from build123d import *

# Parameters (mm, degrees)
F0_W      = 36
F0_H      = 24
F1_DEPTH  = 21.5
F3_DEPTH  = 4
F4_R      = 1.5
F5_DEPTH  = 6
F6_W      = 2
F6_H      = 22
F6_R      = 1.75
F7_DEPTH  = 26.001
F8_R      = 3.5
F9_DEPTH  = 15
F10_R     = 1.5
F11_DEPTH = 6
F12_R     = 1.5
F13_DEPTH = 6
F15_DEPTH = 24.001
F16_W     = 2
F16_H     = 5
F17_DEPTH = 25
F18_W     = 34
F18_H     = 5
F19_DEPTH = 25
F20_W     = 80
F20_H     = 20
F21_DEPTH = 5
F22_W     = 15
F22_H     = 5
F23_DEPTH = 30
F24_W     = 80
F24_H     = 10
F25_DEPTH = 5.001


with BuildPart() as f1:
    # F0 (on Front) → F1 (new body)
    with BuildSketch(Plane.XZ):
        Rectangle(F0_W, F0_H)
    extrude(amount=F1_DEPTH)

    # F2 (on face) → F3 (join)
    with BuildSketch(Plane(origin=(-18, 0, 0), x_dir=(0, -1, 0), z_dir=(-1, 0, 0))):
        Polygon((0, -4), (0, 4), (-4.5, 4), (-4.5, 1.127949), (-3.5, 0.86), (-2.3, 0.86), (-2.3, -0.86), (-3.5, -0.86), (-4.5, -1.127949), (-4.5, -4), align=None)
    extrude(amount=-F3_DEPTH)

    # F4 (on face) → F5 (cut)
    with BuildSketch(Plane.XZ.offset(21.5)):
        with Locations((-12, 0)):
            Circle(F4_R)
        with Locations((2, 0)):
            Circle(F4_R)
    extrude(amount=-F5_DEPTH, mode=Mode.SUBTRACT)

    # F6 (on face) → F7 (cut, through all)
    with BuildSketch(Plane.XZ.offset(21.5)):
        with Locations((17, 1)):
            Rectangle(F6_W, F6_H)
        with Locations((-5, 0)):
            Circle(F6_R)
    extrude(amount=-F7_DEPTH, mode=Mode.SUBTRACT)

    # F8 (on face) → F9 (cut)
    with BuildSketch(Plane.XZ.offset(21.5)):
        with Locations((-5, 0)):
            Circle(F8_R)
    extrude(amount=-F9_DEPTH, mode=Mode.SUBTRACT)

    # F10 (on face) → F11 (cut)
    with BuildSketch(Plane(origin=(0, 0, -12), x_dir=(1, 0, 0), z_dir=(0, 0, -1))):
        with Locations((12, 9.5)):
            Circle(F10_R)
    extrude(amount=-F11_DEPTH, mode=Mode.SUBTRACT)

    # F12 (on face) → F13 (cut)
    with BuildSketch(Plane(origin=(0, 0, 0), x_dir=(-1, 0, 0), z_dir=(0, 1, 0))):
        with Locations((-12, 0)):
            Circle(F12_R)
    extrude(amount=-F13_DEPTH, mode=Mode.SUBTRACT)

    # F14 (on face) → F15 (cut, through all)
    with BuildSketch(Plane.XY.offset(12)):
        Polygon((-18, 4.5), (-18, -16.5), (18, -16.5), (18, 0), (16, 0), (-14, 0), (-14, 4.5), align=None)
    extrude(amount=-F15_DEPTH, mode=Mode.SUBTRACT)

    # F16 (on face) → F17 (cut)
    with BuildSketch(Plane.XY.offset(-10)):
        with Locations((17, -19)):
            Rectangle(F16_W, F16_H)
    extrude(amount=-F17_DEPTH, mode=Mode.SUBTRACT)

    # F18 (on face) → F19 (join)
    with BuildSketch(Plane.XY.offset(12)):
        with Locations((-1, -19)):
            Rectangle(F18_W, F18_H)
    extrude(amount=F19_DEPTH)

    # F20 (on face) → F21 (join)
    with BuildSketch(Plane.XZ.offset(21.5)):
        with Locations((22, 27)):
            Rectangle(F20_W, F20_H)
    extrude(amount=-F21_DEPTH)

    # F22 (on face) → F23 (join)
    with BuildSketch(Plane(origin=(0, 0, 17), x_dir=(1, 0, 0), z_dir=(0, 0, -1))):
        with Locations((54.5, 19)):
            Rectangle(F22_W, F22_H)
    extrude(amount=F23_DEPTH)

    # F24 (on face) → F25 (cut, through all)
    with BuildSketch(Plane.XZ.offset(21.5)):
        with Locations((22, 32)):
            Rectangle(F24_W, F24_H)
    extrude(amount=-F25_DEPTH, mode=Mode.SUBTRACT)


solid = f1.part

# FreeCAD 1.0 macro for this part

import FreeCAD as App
import Part
import Sketcher
Q = App.Units.Quantity


def add_polygon(sketch, points):
    """Adds a closed chain of lines whose ends are joined by coincident constraints."""
    first, n = sketch.GeometryCount, len(points)
    for a, b in zip(points, points[1:] + points[:1]):
        sketch.addGeometry(Part.LineSegment(App.Vector(*a, 0), App.Vector(*b, 0)), False)
    for i in range(n):
        sketch.addConstraint(Sketcher.Constraint("Coincident", first + i, 2, first + (i + 1) % n, 1))

doc = App.newDocument("Part")
params = doc.addObject("Spreadsheet::Sheet", "Params")
for row, (alias, value) in enumerate([
    ("sketch1_width", "36 mm"),
    ("sketch1_height", "24 mm"),
    ("pad1_length", "21.5 mm"),
    ("sketch2_height", "8 mm"),
    ("sketch2_width", "4.5 mm"),
    ("sketch2_width2", "1.2 mm"),
    ("sketch2_height2", "1.72 mm"),
    ("pad2_length", "4 mm"),
    ("sketch3_diameter", "3 mm"),
    ("pocket1_length", "6 mm"),
    ("sketch4_diameter", "3.5 mm"),
    ("sketch4_width", "2 mm"),
    ("sketch4_height", "22 mm"),
    ("sketch5_diameter", "7 mm"),
    ("pocket3_length", "15 mm"),
    ("sketch6_diameter", "3 mm"),
    ("pocket4_length", "6 mm"),
    ("sketch7_diameter", "3 mm"),
    ("pocket5_length", "6 mm"),
    ("sketch8_width", "36 mm"),
    ("sketch8_width2", "32 mm"),
    ("sketch8_height", "21 mm"),
    ("sketch8_height2", "16.5 mm"),
    ("sketch9_width", "2 mm"),
    ("sketch9_height", "5 mm"),
    ("pocket7_length", "25 mm"),
    ("sketch10_width", "34 mm"),
    ("sketch10_height", "5 mm"),
    ("pad3_length", "25 mm"),
    ("sketch11_width", "80 mm"),
    ("sketch11_height", "20 mm"),
    ("pad4_length", "5 mm"),
    ("sketch12_width", "15 mm"),
    ("sketch12_height", "5 mm"),
    ("pad5_length", "30 mm"),
    ("sketch13_width", "80 mm"),
    ("sketch13_height", "10 mm"),
], start=1):
    params.set(f"A{row}", alias)
    params.set(f"B{row}", "=" + value)
    params.setAlias(f"B{row}", alias)

body = doc.addObject("PartDesign::Body", "Body")

sketch1 = body.newObject("Sketcher::SketchObject", "Sketch")
sketch1.AttachmentSupport = (doc.getObject("XZ_Plane"), [""])
sketch1.MapMode = "FlatFace"
add_polygon(sketch1, [(-18, 12), (-18, -12), (18, -12), (18, 12)])
sketch1.addConstraint([
    Sketcher.Constraint("Vertical", 0),
    Sketcher.Constraint("Horizontal", 1),
    Sketcher.Constraint("Vertical", 2),
    Sketcher.Constraint("Horizontal", 3),
    Sketcher.Constraint("Symmetric", 0, 2, 2, 2, -1, 1),
    Sketcher.Constraint("DistanceX", 1, 1, 1, 2, 36.0),
    Sketcher.Constraint("DistanceY", 0, 2, 0, 1, 24.0),
])
sketch1.setExpression("Constraints[9]", "Params.sketch1_width")
sketch1.setExpression("Constraints[10]", "Params.sketch1_height")
pad1 = body.newObject("PartDesign::Pad", "Pad")
pad1.Profile = sketch1
pad1.setExpression("Length", "Params.pad1_length")

sketch2 = body.newObject("Sketcher::SketchObject", "Sketch001")
sketch2.AttachmentSupport = (doc.getObject("YZ_Plane"), [""])
sketch2.MapMode = "FlatFace"
sketch2.AttachmentOffset = App.Placement(App.Vector(0, 0, -18), App.Rotation())
add_polygon(sketch2, [(0, -4), (0, 4), (4.5, 4), (4.5, 1.1), (3.5, 0.9), (2.3, 0.9), (2.3, -0.9), (3.5, -0.9), (4.5, -1.1), (4.5, -4)])
sketch2.addConstraint([
    Sketcher.Constraint("Vertical", 0),
    Sketcher.Constraint("Horizontal", 1),
    Sketcher.Constraint("Vertical", 2),
    Sketcher.Constraint("Horizontal", 4),
    Sketcher.Constraint("Vertical", 5),
    Sketcher.Constraint("Horizontal", 6),
    Sketcher.Constraint("Vertical", 8),
    Sketcher.Constraint("Horizontal", 9),
    Sketcher.Constraint("Symmetric", 0, 2, 9, 2, -1, 1),
    Sketcher.Constraint("Symmetric", 3, 2, 6, 2, -1),
    Sketcher.Constraint("Symmetric", 2, 2, 7, 2, -1),
    Sketcher.Constraint("DistanceY", 0, 1, 0, 2, 8.0),
    Sketcher.Constraint("Angle", 3, Q("-165.00001 deg")),
    Sketcher.Constraint("DistanceX", 1, 1, 1, 2, 4.5),
    Sketcher.Constraint("DistanceX", 4, 2, 4, 1, 1.2),
    Sketcher.Constraint("DistanceX", 3, 2, 2, 2, 1.0),
    Sketcher.Constraint("DistanceY", 5, 2, 5, 1, 1.72),
])
sketch2.setExpression("Constraints[21]", "Params.sketch2_height")
sketch2.setExpression("Constraints[23]", "Params.sketch2_width")
sketch2.setExpression("Constraints[24]", "Params.sketch2_width2")
sketch2.setExpression("Constraints[26]", "Params.sketch2_height2")
pad2 = body.newObject("PartDesign::Pad", "Pad001")
pad2.Profile = sketch2
pad2.setExpression("Length", "Params.pad2_length")

sketch3 = body.newObject("Sketcher::SketchObject", "Sketch002")
sketch3.AttachmentSupport = (doc.getObject("XZ_Plane"), [""])
sketch3.MapMode = "FlatFace"
sketch3.AttachmentOffset = App.Placement(App.Vector(0, 0, 21.5), App.Rotation())
sketch3.addGeometry([
    Part.Circle(App.Vector(-12, 0, 0), App.Vector(0, 0, 1), 1.5),
    Part.Circle(App.Vector(2, 0, 0), App.Vector(0, 0, 1), 1.5),
], False)
sketch3.addConstraint([
    Sketcher.Constraint("Equal", 0, 1),
    Sketcher.Constraint("PointOnObject", 0, 3, -1),
    Sketcher.Constraint("PointOnObject", 1, 3, -1),
    Sketcher.Constraint("Diameter", 0, 3.0),
    Sketcher.Constraint("DistanceX", 0, 3, -1, 1, 12.0),
    Sketcher.Constraint("DistanceX", -1, 1, 1, 3, 2.0),
])
sketch3.setExpression("Constraints[3]", "Params.sketch3_diameter")
pocket1 = body.newObject("PartDesign::Pocket", "Pocket")
pocket1.Profile = sketch3
pocket1.setExpression("Length", "Params.pocket1_length")

sketch4 = body.newObject("Sketcher::SketchObject", "Sketch003")
sketch4.AttachmentSupport = (doc.getObject("XZ_Plane"), [""])
sketch4.MapMode = "FlatFace"
sketch4.AttachmentOffset = App.Placement(App.Vector(0, 0, 21.5), App.Rotation())
add_polygon(sketch4, [(16, 12), (16, -10), (18, -10), (18, 12)])
sketch4.addGeometry(Part.Circle(App.Vector(-5, 0, 0), App.Vector(0, 0, 1), 1.8), False)
sketch4.addConstraint([
    Sketcher.Constraint("Vertical", 0),
    Sketcher.Constraint("Horizontal", 1),
    Sketcher.Constraint("Vertical", 2),
    Sketcher.Constraint("Horizontal", 3),
    Sketcher.Constraint("PointOnObject", 4, 3, -1),
    Sketcher.Constraint("Diameter", 4, 3.5),
    Sketcher.Constraint("DistanceX", 1, 1, 1, 2, 2.0),
    Sketcher.Constraint("DistanceY", 0, 2, 0, 1, 22.0),
    Sketcher.Constraint("DistanceX", 4, 3, -1, 1, 5.0),
    Sketcher.Constraint("DistanceX", -1, 1, 0, 2, 16.0),
    Sketcher.Constraint("DistanceY", 0, 2, -1, 1, 10.0),
])
sketch4.setExpression("Constraints[9]", "Params.sketch4_diameter")
sketch4.setExpression("Constraints[10]", "Params.sketch4_width")
sketch4.setExpression("Constraints[11]", "Params.sketch4_height")
pocket2 = body.newObject("PartDesign::Pocket", "Pocket001")
pocket2.Profile = sketch4
pocket2.Type = "ThroughAll"

sketch5 = body.newObject("Sketcher::SketchObject", "Sketch004")
sketch5.AttachmentSupport = (doc.getObject("XZ_Plane"), [""])
sketch5.MapMode = "FlatFace"
sketch5.AttachmentOffset = App.Placement(App.Vector(0, 0, 21.5), App.Rotation())
sketch5.addGeometry(Part.Circle(App.Vector(-5, 0, 0), App.Vector(0, 0, 1), 3.5), False)
sketch5.addConstraint([
    Sketcher.Constraint("PointOnObject", 0, 3, -1),
    Sketcher.Constraint("Diameter", 0, 7.0),
    Sketcher.Constraint("DistanceX", 0, 3, -1, 1, 5.0),
])
sketch5.setExpression("Constraints[1]", "Params.sketch5_diameter")
pocket3 = body.newObject("PartDesign::Pocket", "Pocket002")
pocket3.Profile = sketch5
pocket3.setExpression("Length", "Params.pocket3_length")

sketch6 = body.newObject("Sketcher::SketchObject", "Sketch005")
sketch6.AttachmentSupport = (doc.getObject("XY_Plane"), [""])
sketch6.MapMode = "FlatFace"
sketch6.AttachmentOffset = App.Placement(App.Vector(0, 0, -12), App.Rotation())
sketch6.addGeometry(Part.Circle(App.Vector(12, -9.5, 0), App.Vector(0, 0, 1), 1.5), False)
sketch6.addConstraint([
    Sketcher.Constraint("Diameter", 0, 3.0),
    Sketcher.Constraint("DistanceX", -1, 1, 0, 3, 12.0),
    Sketcher.Constraint("DistanceY", 0, 3, -1, 1, 9.5),
])
sketch6.setExpression("Constraints[0]", "Params.sketch6_diameter")
pocket4 = body.newObject("PartDesign::Pocket", "Pocket003")
pocket4.Profile = sketch6
pocket4.setExpression("Length", "Params.pocket4_length")
pocket4.Reversed = True

sketch7 = body.newObject("Sketcher::SketchObject", "Sketch006")
sketch7.AttachmentSupport = (doc.getObject("XZ_Plane"), [""])
sketch7.MapMode = "FlatFace"
sketch7.addGeometry(Part.Circle(App.Vector(12, 0, 0), App.Vector(0, 0, 1), 1.5), False)
sketch7.addConstraint([
    Sketcher.Constraint("PointOnObject", 0, 3, -1),
    Sketcher.Constraint("Diameter", 0, 3.0),
    Sketcher.Constraint("DistanceX", -1, 1, 0, 3, 12.0),
])
sketch7.setExpression("Constraints[1]", "Params.sketch7_diameter")
pocket5 = body.newObject("PartDesign::Pocket", "Pocket004")
pocket5.Profile = sketch7
pocket5.setExpression("Length", "Params.pocket5_length")
pocket5.Reversed = True

sketch8 = body.newObject("Sketcher::SketchObject", "Sketch007")
sketch8.AttachmentSupport = (doc.getObject("XY_Plane"), [""])
sketch8.MapMode = "FlatFace"
sketch8.AttachmentOffset = App.Placement(App.Vector(0, 0, 12), App.Rotation())
add_polygon(sketch8, [(-18, 4.5), (-18, -16.5), (18, -16.5), (18, 0), (-14, 0), (-14, 4.5)])
sketch8.addConstraint([
    Sketcher.Constraint("Vertical", 0),
    Sketcher.Constraint("Horizontal", 1),
    Sketcher.Constraint("Vertical", 2),
    Sketcher.Constraint("Horizontal", 3),
    Sketcher.Constraint("Vertical", 4),
    Sketcher.Constraint("Horizontal", 5),
    Sketcher.Constraint("PointOnObject", 2, 2, -1),
    Sketcher.Constraint("DistanceX", 1, 1, 1, 2, 36.0),
    Sketcher.Constraint("DistanceX", 3, 2, 3, 1, 32.0),
    Sketcher.Constraint("DistanceY", 0, 2, 0, 1, 21.0),
    Sketcher.Constraint("DistanceY", 2, 1, 2, 2, 16.5),
    Sketcher.Constraint("DistanceX", 0, 2, -1, 1, 18.0),
])
sketch8.setExpression("Constraints[13]", "Params.sketch8_width")
sketch8.setExpression("Constraints[14]", "Params.sketch8_width2")
sketch8.setExpression("Constraints[15]", "Params.sketch8_height")
sketch8.setExpression("Constraints[16]", "Params.sketch8_height2")
pocket6 = body.newObject("PartDesign::Pocket", "Pocket005")
pocket6.Profile = sketch8
pocket6.Type = "ThroughAll"

sketch9 = body.newObject("Sketcher::SketchObject", "Sketch008")
sketch9.AttachmentSupport = (doc.getObject("XY_Plane"), [""])
sketch9.MapMode = "FlatFace"
sketch9.AttachmentOffset = App.Placement(App.Vector(0, 0, -10), App.Rotation())
add_polygon(sketch9, [(16, -16.5), (16, -21.5), (18, -21.5), (18, -16.5)])
sketch9.addConstraint([
    Sketcher.Constraint("Vertical", 0),
    Sketcher.Constraint("Horizontal", 1),
    Sketcher.Constraint("Vertical", 2),
    Sketcher.Constraint("Horizontal", 3),
    Sketcher.Constraint("DistanceX", 1, 1, 1, 2, 2.0),
    Sketcher.Constraint("DistanceY", 0, 2, 0, 1, 5.0),
    Sketcher.Constraint("DistanceX", -1, 1, 0, 2, 16.0),
    Sketcher.Constraint("DistanceY", 0, 2, -1, 1, 21.5),
])
sketch9.setExpression("Constraints[8]", "Params.sketch9_width")
sketch9.setExpression("Constraints[9]", "Params.sketch9_height")
pocket7 = body.newObject("PartDesign::Pocket", "Pocket006")
pocket7.Profile = sketch9
pocket7.setExpression("Length", "Params.pocket7_length")

sketch10 = body.newObject("Sketcher::SketchObject", "Sketch009")
sketch10.AttachmentSupport = (doc.getObject("XY_Plane"), [""])
sketch10.MapMode = "FlatFace"
sketch10.AttachmentOffset = App.Placement(App.Vector(0, 0, 12), App.Rotation())
add_polygon(sketch10, [(-18, -16), (-18, -22), (16, -22), (16, -16)])
sketch10.addConstraint([
    Sketcher.Constraint("Vertical", 0),
    Sketcher.Constraint("Horizontal", 1),
    Sketcher.Constraint("Vertical", 2),
    Sketcher.Constraint("Horizontal", 3),
    Sketcher.Constraint("DistanceX", 1, 1, 1, 2, 34.0),
    Sketcher.Constraint("DistanceY", 0, 2, 0, 1, 5.0),
    Sketcher.Constraint("DistanceX", 0, 2, -1, 1, 18.0),
    Sketcher.Constraint("DistanceY", 0, 2, -1, 1, 21.5),
])
sketch10.setExpression("Constraints[8]", "Params.sketch10_width")
sketch10.setExpression("Constraints[9]", "Params.sketch10_height")
pad3 = body.newObject("PartDesign::Pad", "Pad002")
pad3.Profile = sketch10
pad3.setExpression("Length", "Params.pad3_length")

sketch11 = body.newObject("Sketcher::SketchObject", "Sketch010")
sketch11.AttachmentSupport = (doc.getObject("XZ_Plane"), [""])
sketch11.MapMode = "FlatFace"
sketch11.AttachmentOffset = App.Placement(App.Vector(0, 0, 21.5), App.Rotation())
add_polygon(sketch11, [(-18, 37), (-18, 17), (62, 17), (62, 37)])
sketch11.addConstraint([
    Sketcher.Constraint("Vertical", 0),
    Sketcher.Constraint("Horizontal", 1),
    Sketcher.Constraint("Vertical", 2),
    Sketcher.Constraint("Horizontal", 3),
    Sketcher.Constraint("DistanceX", 1, 1, 1, 2, 80.0),
    Sketcher.Constraint("DistanceY", 0, 2, 0, 1, 20.0),
    Sketcher.Constraint("DistanceX", 0, 2, -1, 1, 18.0),
    Sketcher.Constraint("DistanceY", -1, 1, 0, 2, 17.0),
])
sketch11.setExpression("Constraints[8]", "Params.sketch11_width")
sketch11.setExpression("Constraints[9]", "Params.sketch11_height")
pad4 = body.newObject("PartDesign::Pad", "Pad003")
pad4.Profile = sketch11
pad4.setExpression("Length", "Params.pad4_length")
pad4.Reversed = True

sketch12 = body.newObject("Sketcher::SketchObject", "Sketch011")
sketch12.AttachmentSupport = (doc.getObject("XY_Plane"), [""])
sketch12.MapMode = "FlatFace"
sketch12.AttachmentOffset = App.Placement(App.Vector(0, 0, 17), App.Rotation())
add_polygon(sketch12, [(47, -22), (47, -16), (62, -16), (62, -22)])
sketch12.addConstraint([
    Sketcher.Constraint("Vertical", 0),
    Sketcher.Constraint("Horizontal", 1),
    Sketcher.Constraint("Vertical", 2),
    Sketcher.Constraint("Horizontal", 3),
    Sketcher.Constraint("DistanceX", 1, 1, 1, 2, 15.0),
    Sketcher.Constraint("DistanceY", 0, 1, 0, 2, 5.0),
    Sketcher.Constraint("DistanceX", -1, 1, 0, 2, 47.0),
    Sketcher.Constraint("DistanceY", 0, 2, -1, 1, 16.5),
])
sketch12.setExpression("Constraints[8]", "Params.sketch12_width")
sketch12.setExpression("Constraints[9]", "Params.sketch12_height")
pad5 = body.newObject("PartDesign::Pad", "Pad004")
pad5.Profile = sketch12
pad5.setExpression("Length", "Params.pad5_length")
pad5.Reversed = True

sketch13 = body.newObject("Sketcher::SketchObject", "Sketch012")
sketch13.AttachmentSupport = (doc.getObject("XZ_Plane"), [""])
sketch13.MapMode = "FlatFace"
sketch13.AttachmentOffset = App.Placement(App.Vector(0, 0, 21.5), App.Rotation())
add_polygon(sketch13, [(-18, 37), (-18, 27), (62, 27), (62, 37)])
sketch13.addConstraint([
    Sketcher.Constraint("Vertical", 0),
    Sketcher.Constraint("Horizontal", 1),
    Sketcher.Constraint("Vertical", 2),
    Sketcher.Constraint("Horizontal", 3),
    Sketcher.Constraint("DistanceX", 1, 1, 1, 2, 80.0),
    Sketcher.Constraint("DistanceY", 0, 2, 0, 1, 10.0),
    Sketcher.Constraint("DistanceX", 0, 2, -1, 1, 18.0),
    Sketcher.Constraint("DistanceY", -1, 1, 0, 2, 27.0),
])
sketch13.setExpression("Constraints[8]", "Params.sketch13_width")
sketch13.setExpression("Constraints[9]", "Params.sketch13_height")
pocket8 = body.newObject("PartDesign::Pocket", "Pocket007")
pocket8.Profile = sketch13
pocket8.Type = "ThroughAll"

doc.recompute()
